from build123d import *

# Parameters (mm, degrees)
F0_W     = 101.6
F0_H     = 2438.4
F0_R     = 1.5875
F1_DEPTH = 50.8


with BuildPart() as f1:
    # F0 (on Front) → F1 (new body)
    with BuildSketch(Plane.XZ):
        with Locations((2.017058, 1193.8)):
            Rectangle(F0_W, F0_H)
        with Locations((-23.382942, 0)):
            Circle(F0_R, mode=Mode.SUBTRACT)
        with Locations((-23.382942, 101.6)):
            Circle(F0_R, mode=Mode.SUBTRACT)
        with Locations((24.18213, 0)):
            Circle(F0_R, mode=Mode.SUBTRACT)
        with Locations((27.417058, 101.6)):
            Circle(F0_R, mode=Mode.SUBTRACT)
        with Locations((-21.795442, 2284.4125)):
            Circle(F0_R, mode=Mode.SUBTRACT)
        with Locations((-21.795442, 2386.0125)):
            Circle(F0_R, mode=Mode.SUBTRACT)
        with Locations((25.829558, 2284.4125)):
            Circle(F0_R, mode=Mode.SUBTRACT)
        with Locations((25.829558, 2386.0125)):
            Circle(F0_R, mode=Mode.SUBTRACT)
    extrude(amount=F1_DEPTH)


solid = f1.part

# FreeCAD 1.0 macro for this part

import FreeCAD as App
import Part
import Sketcher
Q = App.Units.Quantity


def add_polygon(sketch, points):
    """Adds a closed chain of lines whose ends are joined by coincident constraints."""
    first, n = sketch.GeometryCount, len(points)
    for a, b in zip(points, points[1:] + points[:1]):
        sketch.addGeometry(Part.LineSegment(App.Vector(*a, 0), App.Vector(*b, 0)), False)
    for i in range(n):
        sketch.addConstraint(Sketcher.Constraint("Coincident", first + i, 2, first + (i + 1) % n, 1))

doc = App.newDocument("Part")
body = doc.addObject("PartDesign::Body", "Body")

sketch1 = doc.addObject("Sketcher::SketchObject", "Sketch")
body.addObject(sketch1)
sketch1.AttachmentSupport = (doc.XZ_Plane, [""])
sketch1.MapMode = "FlatFace"
add_polygon(sketch1, [(-48.782942, 2413), (-48.782942, -25.4), (52.817058, -25.4), (52.817058, 2413)])
sketch1.addGeometry(Part.Circle(App.Vector(-23.382942, 0, 0), App.Vector(0, 0, 1), 1.5875), False)
sketch1.addGeometry(Part.Circle(App.Vector(-23.382942, 101.6, 0), App.Vector(0, 0, 1), 1.5875), False)
sketch1.addGeometry(Part.Circle(App.Vector(24.18213, 0, 0), App.Vector(0, 0, 1), 1.5875), False)
sketch1.addGeometry(Part.Circle(App.Vector(27.417058, 101.6, 0), App.Vector(0, 0, 1), 1.5875), False)
sketch1.addGeometry(Part.Circle(App.Vector(-21.795442, 2284.4125, 0), App.Vector(0, 0, 1), 1.5875), False)
sketch1.addGeometry(Part.Circle(App.Vector(-21.795442, 2386.0125, 0), App.Vector(0, 0, 1), 1.5875), False)
sketch1.addGeometry(Part.Circle(App.Vector(25.829558, 2284.4125, 0), App.Vector(0, 0, 1), 1.5875), False)
sketch1.addGeometry(Part.Circle(App.Vector(25.829558, 2386.0125, 0), App.Vector(0, 0, 1), 1.5875), False)
sketch1.addConstraint([
    Sketcher.Constraint("Vertical", 0),
    Sketcher.Constraint("Horizontal", 1),
    Sketcher.Constraint("Vertical", 2),
    Sketcher.Constraint("Horizontal", 3),
    Sketcher.Constraint("Equal", 4, 5),
    Sketcher.Constraint("Equal", 5, 6),
    Sketcher.Constraint("Equal", 6, 7),
    Sketcher.Constraint("Equal", 7, 8),
    Sketcher.Constraint("Equal", 8, 9),
    Sketcher.Constraint("Equal", 9, 10),
    Sketcher.Constraint("Equal", 10, 11),
    Sketcher.Constraint("PointOnObject", 4, 3, -1),
    Sketcher.Constraint("PointOnObject", 6, 3, -1),
    Sketcher.Constraint("Horizontal", 5, 3, 7, 3),
    Sketcher.Constraint("Horizontal", 8, 3, 10, 3),
    Sketcher.Constraint("Horizontal", 9, 3, 11, 3),
    Sketcher.Constraint("Vertical", 4, 3, 5, 3),
    Sketcher.Constraint("Vertical", 8, 3, 9, 3),
    Sketcher.Constraint("Vertical", 10, 3, 11, 3),
    Sketcher.Constraint("DistanceX", 1, 1, 1, 2, Q("4 in")),
    Sketcher.Constraint("DistanceY", 0, 2, 0, 1, Q("96 in")),
    Sketcher.Constraint("Diameter", 4, Q("0.125 in")),
    Sketcher.Constraint("DistanceY", -1, 1, 5, 3, Q("4 in")),
    Sketcher.Constraint("DistanceY", 0, 2, -1, 1, Q("1 in")),
    Sketcher.Constraint("DistanceX", 5, 3, 7, 3, Q("2 in")),
    Sketcher.Constraint("DistanceY", 8, 3, 9, 3, Q("4 in")),
    Sketcher.Constraint("DistanceX", 0, 2, 4, 3, Q("1 in")),
    Sketcher.Constraint("DistanceY", -1, 1, 8, 3, Q("89.9375 in")),
    Sketcher.Constraint("DistanceX", 5, 3, 8, 3, Q("0.0625 in")),
    Sketcher.Constraint("DistanceX", 8, 3, 10, 3, Q("1.875 in")),
    Sketcher.Constraint("DistanceX", 4, 3, -1, 1, 23.382942),
    Sketcher.Constraint("DistanceX", -1, 1, 6, 3, 24.18213),
])
pad1 = doc.addObject("PartDesign::Pad", "Pad")
body.addObject(pad1)
pad1.Profile = sketch1
pad1.Length = Q("2 in")

doc.recompute()
